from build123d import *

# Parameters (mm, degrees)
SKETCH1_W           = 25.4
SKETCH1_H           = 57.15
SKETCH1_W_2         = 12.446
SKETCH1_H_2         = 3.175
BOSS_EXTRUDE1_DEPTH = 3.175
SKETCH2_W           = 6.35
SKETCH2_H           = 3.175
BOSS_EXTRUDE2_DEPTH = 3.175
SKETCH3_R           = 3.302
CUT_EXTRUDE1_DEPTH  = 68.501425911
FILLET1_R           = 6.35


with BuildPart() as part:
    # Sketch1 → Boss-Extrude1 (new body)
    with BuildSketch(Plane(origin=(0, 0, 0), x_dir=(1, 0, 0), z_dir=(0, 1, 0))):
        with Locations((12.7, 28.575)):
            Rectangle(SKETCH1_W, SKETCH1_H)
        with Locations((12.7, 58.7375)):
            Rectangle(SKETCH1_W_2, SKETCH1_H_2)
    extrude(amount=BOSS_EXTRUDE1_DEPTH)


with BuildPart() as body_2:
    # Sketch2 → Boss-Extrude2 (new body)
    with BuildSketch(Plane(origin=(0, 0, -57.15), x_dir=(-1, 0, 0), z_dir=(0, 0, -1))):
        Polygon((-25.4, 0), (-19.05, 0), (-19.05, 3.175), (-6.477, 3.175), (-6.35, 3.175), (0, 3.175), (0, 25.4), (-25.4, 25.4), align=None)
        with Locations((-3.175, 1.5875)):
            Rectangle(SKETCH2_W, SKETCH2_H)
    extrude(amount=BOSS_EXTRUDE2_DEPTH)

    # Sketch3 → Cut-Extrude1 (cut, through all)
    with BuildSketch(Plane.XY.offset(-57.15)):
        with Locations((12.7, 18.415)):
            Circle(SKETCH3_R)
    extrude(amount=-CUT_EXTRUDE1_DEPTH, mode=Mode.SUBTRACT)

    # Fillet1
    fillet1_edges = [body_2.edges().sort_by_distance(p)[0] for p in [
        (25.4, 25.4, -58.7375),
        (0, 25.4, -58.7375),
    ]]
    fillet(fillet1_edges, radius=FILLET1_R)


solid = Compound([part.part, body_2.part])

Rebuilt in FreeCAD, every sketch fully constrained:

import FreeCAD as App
import Part
import Sketcher
Q = App.Units.Quantity


def edges_at(feature, points):
    """Names of the edges that pass closest to the given points."""
    edges = feature.Shape.Edges
    near = lambda p: min(range(len(edges)), key=lambda i: edges[i].distToShape(Part.Vertex(*p))[0])
    return sorted({f"Edge{near(p) + 1}" for p in points})


def add_polygon(sketch, points):
    """Adds a closed chain of lines whose ends are joined by coincident constraints."""
    first, n = sketch.GeometryCount, len(points)
    for a, b in zip(points, points[1:] + points[:1]):
        sketch.addGeometry(Part.LineSegment(App.Vector(*a, 0), App.Vector(*b, 0)), False)
    for i in range(n):
        sketch.addConstraint(Sketcher.Constraint("Coincident", first + i, 2, first + (i + 1) % n, 1))

doc = App.newDocument("Part")
body = doc.addObject("PartDesign::Body", "Body")

sketch1 = body.newObject("Sketcher::SketchObject", "Sketch")
sketch1.AttachmentSupport = (doc.getObject("XZ_Plane"), [""])
sketch1.MapMode = "FlatFace"
add_polygon(sketch1, [(0, -57.1), (0, 0), (25.4, 0), (25.4, -57.1), (18.9, -57.1), (18.9, -60.3), (6.5, -60.3), (6.5, -57.1)])
sketch1.addConstraint(Sketcher.Constraint("Vertical", 0))
sketch1.addConstraint(Sketcher.Constraint("Horizontal", 1))
sketch1.addConstraint(Sketcher.Constraint("Vertical", 2))
sketch1.addConstraint(Sketcher.Constraint("Horizontal", 3))
sketch1.addConstraint(Sketcher.Constraint("Vertical", 4))
sketch1.addConstraint(Sketcher.Constraint("Horizontal", 5))
sketch1.addConstraint(Sketcher.Constraint("Vertical", 6))
sketch1.addConstraint(Sketcher.Constraint("Horizontal", 7))
sketch1.addConstraint(Sketcher.Constraint("Coincident", 0, 2, -1, 1))
sketch1.addConstraint(Sketcher.Constraint("Horizontal", 3, 2, 6, 2))
sketch1.addConstraint(Sketcher.Constraint("Equal", 3, 7))
sketch1.addConstraint(Sketcher.Constraint("DistanceX", 1, 1, 1, 2, Q("1 in")))
sketch1.addConstraint(Sketcher.Constraint("DistanceX", 5, 2, 5, 1, Q("0.49 in")))
sketch1.addConstraint(Sketcher.Constraint("DistanceY", 0, 1, 0, 2, Q("2.25 in")))
sketch1.addConstraint(Sketcher.Constraint("DistanceY", 4, 2, 4, 1, Q("0.125 in")))
pad1 = body.newObject("PartDesign::Pad", "Pad")
pad1.Profile = sketch1
pad1.Length = Q("0.125 in")
pad1.Reversed = True
body2 = doc.addObject("PartDesign::Body", "Body001")

sketch2 = body2.newObject("Sketcher::SketchObject", "Sketch001")
sketch2.AttachmentSupport = (doc.getObject("XY_Plane001"), [""])
sketch2.MapMode = "FlatFace"
sketch2.AttachmentOffset = App.Placement(App.Vector(0, 0, -2.25 * 25.4), App.Rotation())
add_polygon(sketch2, [(25.4, 0), (19.1, 0), (19.1, 3.2), (6.3, 3.2), (6.3, 0), (0, 0), (0, 25.4), (25.4, 25.4)])
sketch2.addConstraint(Sketcher.Constraint("Horizontal", 0))
sketch2.addConstraint(Sketcher.Constraint("Vertical", 1))
sketch2.addConstraint(Sketcher.Constraint("Horizontal", 2))
sketch2.addConstraint(Sketcher.Constraint("Vertical", 3))
sketch2.addConstraint(Sketcher.Constraint("Horizontal", 4))
sketch2.addConstraint(Sketcher.Constraint("Vertical", 5))
sketch2.addConstraint(Sketcher.Constraint("Horizontal", 6))
sketch2.addConstraint(Sketcher.Constraint("Vertical", 7))
sketch2.addConstraint(Sketcher.Constraint("Coincident", 4, 2, -1, 1))
sketch2.addConstraint(Sketcher.Constraint("PointOnObject", 0, 2, -1))
sketch2.addConstraint(Sketcher.Constraint("Equal", 0, 4))
sketch2.addConstraint(Sketcher.Constraint("Equal", 6, 5))
sketch2.addConstraint(Sketcher.Constraint("DistanceX", 6, 1, 6, 2, Q("1 in")))
sketch2.addConstraint(Sketcher.Constraint("DistanceX", 2, 2, 2, 1, Q("0.5 in")))
sketch2.addConstraint(Sketcher.Constraint("DistanceY", 1, 1, 1, 2, Q("0.125 in")))
pad2 = body2.newObject("PartDesign::Pad", "Pad001")
pad2.Profile = sketch2
pad2.Length = Q("0.125 in")
pad2.Reversed = True

sketch3 = body2.newObject("Sketcher::SketchObject", "Sketch002")
sketch3.AttachmentSupport = (doc.getObject("XY_Plane001"), [""])
sketch3.MapMode = "FlatFace"
sketch3.AttachmentOffset = App.Placement(App.Vector(0, 0, -2.25 * 25.4), App.Rotation())
sketch3.addGeometry(Part.Circle(App.Vector(12.7, 18.4, 0), App.Vector(0, 0, 1), 3.3), False)
sketch3.addConstraint(Sketcher.Constraint("Diameter", 0, Q("0.26 in")))
sketch3.addConstraint(Sketcher.Constraint("DistanceX", -1, 1, 0, 3, Q("0.5 in")))
sketch3.addConstraint(Sketcher.Constraint("DistanceY", -1, 1, 0, 3, Q("0.725 in")))
pocket1 = body2.newObject("PartDesign::Pocket", "Pocket")
pocket1.Profile = sketch3
pocket1.Type = "ThroughAll"
doc.recompute()

fillet = body2.newObject("PartDesign::Fillet", "Fillet")
fillet.Base = (pocket1, edges_at(pocket1, [(25.4, 25.4, -58.737), (0, 25.4, -58.737)]))
fillet.Radius = Q("0.25 in")

doc.recompute()
